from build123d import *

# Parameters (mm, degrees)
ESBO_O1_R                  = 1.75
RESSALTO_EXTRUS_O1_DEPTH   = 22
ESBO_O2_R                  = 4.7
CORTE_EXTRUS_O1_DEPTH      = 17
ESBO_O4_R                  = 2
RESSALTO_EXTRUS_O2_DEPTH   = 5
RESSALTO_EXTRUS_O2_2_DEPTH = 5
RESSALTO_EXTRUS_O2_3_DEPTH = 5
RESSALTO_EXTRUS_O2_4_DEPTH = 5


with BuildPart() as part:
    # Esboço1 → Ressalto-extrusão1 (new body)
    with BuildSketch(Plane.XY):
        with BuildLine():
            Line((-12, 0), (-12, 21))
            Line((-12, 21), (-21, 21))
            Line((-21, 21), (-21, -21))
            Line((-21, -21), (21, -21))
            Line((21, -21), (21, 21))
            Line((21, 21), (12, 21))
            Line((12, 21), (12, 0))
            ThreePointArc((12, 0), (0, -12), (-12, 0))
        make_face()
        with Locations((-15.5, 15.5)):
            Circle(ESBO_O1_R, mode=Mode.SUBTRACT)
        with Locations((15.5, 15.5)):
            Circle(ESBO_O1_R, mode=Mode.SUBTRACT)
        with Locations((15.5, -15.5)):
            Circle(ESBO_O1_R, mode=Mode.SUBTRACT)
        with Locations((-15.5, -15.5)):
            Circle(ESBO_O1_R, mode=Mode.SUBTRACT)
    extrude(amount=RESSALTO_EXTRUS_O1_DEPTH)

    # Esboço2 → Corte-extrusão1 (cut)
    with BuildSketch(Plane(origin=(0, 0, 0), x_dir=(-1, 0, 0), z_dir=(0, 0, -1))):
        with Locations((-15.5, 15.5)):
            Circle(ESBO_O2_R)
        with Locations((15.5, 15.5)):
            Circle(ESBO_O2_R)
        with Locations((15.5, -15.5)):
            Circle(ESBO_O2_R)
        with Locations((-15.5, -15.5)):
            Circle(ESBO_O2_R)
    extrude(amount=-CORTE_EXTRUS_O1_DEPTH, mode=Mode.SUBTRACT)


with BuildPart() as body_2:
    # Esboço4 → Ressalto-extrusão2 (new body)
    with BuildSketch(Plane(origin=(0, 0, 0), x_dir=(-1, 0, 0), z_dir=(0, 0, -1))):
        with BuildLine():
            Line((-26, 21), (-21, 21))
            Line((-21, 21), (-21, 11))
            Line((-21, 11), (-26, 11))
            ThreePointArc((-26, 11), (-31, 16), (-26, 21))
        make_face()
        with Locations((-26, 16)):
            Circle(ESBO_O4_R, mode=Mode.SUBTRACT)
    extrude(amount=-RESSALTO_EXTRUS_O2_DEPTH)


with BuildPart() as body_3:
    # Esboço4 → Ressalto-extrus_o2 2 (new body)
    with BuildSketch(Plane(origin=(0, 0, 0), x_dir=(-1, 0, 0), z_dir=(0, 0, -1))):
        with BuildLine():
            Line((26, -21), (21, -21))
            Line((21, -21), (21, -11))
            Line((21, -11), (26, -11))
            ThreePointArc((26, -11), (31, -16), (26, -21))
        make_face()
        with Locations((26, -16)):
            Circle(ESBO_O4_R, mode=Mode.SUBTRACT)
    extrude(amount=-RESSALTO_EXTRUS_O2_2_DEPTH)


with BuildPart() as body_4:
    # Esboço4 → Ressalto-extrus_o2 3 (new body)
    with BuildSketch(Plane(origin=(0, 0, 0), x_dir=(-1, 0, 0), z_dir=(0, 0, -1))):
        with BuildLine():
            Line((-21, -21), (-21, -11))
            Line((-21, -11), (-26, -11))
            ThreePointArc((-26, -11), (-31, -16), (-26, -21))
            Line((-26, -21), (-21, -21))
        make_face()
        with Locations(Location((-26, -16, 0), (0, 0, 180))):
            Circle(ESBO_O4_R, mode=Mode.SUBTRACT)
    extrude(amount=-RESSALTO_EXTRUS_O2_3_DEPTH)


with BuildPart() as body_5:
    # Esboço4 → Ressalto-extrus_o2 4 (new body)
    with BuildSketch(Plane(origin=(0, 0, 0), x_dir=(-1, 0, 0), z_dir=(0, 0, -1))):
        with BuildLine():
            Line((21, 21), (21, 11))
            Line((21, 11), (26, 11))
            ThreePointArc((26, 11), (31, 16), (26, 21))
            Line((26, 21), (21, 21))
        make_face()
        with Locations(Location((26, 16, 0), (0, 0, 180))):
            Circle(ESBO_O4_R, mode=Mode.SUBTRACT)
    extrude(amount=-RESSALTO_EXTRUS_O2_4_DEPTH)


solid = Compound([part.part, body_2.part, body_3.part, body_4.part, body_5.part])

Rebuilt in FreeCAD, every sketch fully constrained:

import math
import FreeCAD as App
import Part
import Sketcher
from FreeCAD import Vector
Q = App.Units.Quantity

doc = App.newDocument("Part")
body = doc.addObject("PartDesign::Body", "Body")

sketch1 = body.newObject("Sketcher::SketchObject", "Sketch")
sketch1.AttachmentSupport = (doc.getObject("XY_Plane"), [""])
sketch1.MapMode = "FlatFace"
sketch1.addGeometry(Part.LineSegment(Vector(-12, 0, 0), Vector(-12, 21, 0)), False)
sketch1.addGeometry(Part.LineSegment(Vector(-12, 21, 0), Vector(-21, 21, 0)), False)
sketch1.addGeometry(Part.LineSegment(Vector(-21, 21, 0), Vector(-21, -21, 0)), False)
sketch1.addGeometry(Part.LineSegment(Vector(-21, -21, 0), Vector(21, -21, 0)), False)
sketch1.addGeometry(Part.LineSegment(Vector(21, -21, 0), Vector(21, 21, 0)), False)
sketch1.addGeometry(Part.LineSegment(Vector(21, 21, 0), Vector(12, 21, 0)), False)
sketch1.addGeometry(Part.LineSegment(Vector(12, 21, 0), Vector(12, 0, 0)), False)
sketch1.addGeometry(Part.ArcOfCircle(Part.Circle(Vector(0, 0, 0), Vector(0, 0, 1), 12), math.radians(180), math.radians(360)), False)
sketch1.addGeometry(Part.Circle(Vector(-15.5, -15.5, 0), Vector(0, 0, 1), 1.8), False)
sketch1.addGeometry(Part.Circle(Vector(15.5, -15.5, 0), Vector(0, 0, 1), 1.8), False)
sketch1.addGeometry(Part.Circle(Vector(-15.5, 15.5, 0), Vector(0, 0, 1), 1.8), False)
sketch1.addGeometry(Part.Circle(Vector(15.5, 15.5, 0), Vector(0, 0, 1), 1.8), False)
sketch1.addConstraint(Sketcher.Constraint("Coincident", 0, 2, 1, 1))
sketch1.addConstraint(Sketcher.Constraint("Coincident", 1, 2, 2, 1))
sketch1.addConstraint(Sketcher.Constraint("Coincident", 2, 2, 3, 1))
sketch1.addConstraint(Sketcher.Constraint("Coincident", 3, 2, 4, 1))
sketch1.addConstraint(Sketcher.Constraint("Coincident", 4, 2, 5, 1))
sketch1.addConstraint(Sketcher.Constraint("Coincident", 5, 2, 6, 1))
sketch1.addConstraint(Sketcher.Constraint("Tangent", 6, 2, 7, 2))
sketch1.addConstraint(Sketcher.Constraint("Tangent", 7, 1, 0, 1))
sketch1.addConstraint(Sketcher.Constraint("Vertical", 0))
sketch1.addConstraint(Sketcher.Constraint("Horizontal", 1))
sketch1.addConstraint(Sketcher.Constraint("Vertical", 2))
sketch1.addConstraint(Sketcher.Constraint("Horizontal", 3))
sketch1.addConstraint(Sketcher.Constraint("Vertical", 4))
sketch1.addConstraint(Sketcher.Constraint("Horizontal", 5))
sketch1.addConstraint(Sketcher.Constraint("Vertical", 6))
sketch1.addConstraint(Sketcher.Constraint("Coincident", 7, 3, -1, 1))
sketch1.addConstraint(Sketcher.Constraint("Equal", 8, 9))
sketch1.addConstraint(Sketcher.Constraint("Equal", 9, 10))
sketch1.addConstraint(Sketcher.Constraint("Equal", 10, 11))
sketch1.addConstraint(Sketcher.Constraint("Symmetric", 9, 3, 10, 3, -1, 1))
sketch1.addConstraint(Sketcher.Constraint("Symmetric", 8, 3, 11, 3, -1, 1))
sketch1.addConstraint(Sketcher.Constraint("Symmetric", 1, 2, 3, 2, -1, 1))
sketch1.addConstraint(Sketcher.Constraint("Symmetric", 8, 3, 9, 3, -2))
sketch1.addConstraint(Sketcher.Constraint("Horizontal", 1, 2, 4, 2))
sketch1.addConstraint(Sketcher.Constraint("Equal", 3, 2))
sketch1.addConstraint(Sketcher.Constraint("Radius", 7, Q("12 mm")))
sketch1.addConstraint(Sketcher.Constraint("Diameter", 8, Q("3.5 mm")))
sketch1.addConstraint(Sketcher.Constraint("DistanceX", 1, 2, 1, 1, Q("9 mm")))
sketch1.addConstraint(Sketcher.Constraint("DistanceX", 8, 3, 9, 3, Q("31 mm")))
sketch1.addConstraint(Sketcher.Constraint("DistanceY", 8, 3, 10, 3, Q("31 mm")))
pad1 = body.newObject("PartDesign::Pad", "Pad")
pad1.Profile = sketch1
pad1.Length = 22

sketch2 = body.newObject("Sketcher::SketchObject", "Sketch001")
sketch2.AttachmentSupport = (doc.getObject("XY_Plane"), [""])
sketch2.MapMode = "FlatFace"
sketch2.addGeometry(Part.Circle(Vector(15.5, 15.5, 0), Vector(0, 0, 1), 4.7), False)
sketch2.addGeometry(Part.Circle(Vector(-15.5, 15.5, 0), Vector(0, 0, 1), 4.7), False)
sketch2.addGeometry(Part.Circle(Vector(-15.5, -15.5, 0), Vector(0, 0, 1), 4.7), False)
sketch2.addGeometry(Part.Circle(Vector(15.5, -15.5, 0), Vector(0, 0, 1), 4.7), False)
sketch2.addConstraint(Sketcher.Constraint("Equal", 0, 1))
sketch2.addConstraint(Sketcher.Constraint("Equal", 1, 2))
sketch2.addConstraint(Sketcher.Constraint("Equal", 2, 3))
sketch2.addConstraint(Sketcher.Constraint("Symmetric", 0, 3, 2, 3, -1, 1))
sketch2.addConstraint(Sketcher.Constraint("Symmetric", 1, 3, 3, 3, -1, 1))
sketch2.addConstraint(Sketcher.Constraint("Symmetric", 0, 3, 1, 3, -2))
sketch2.addConstraint(Sketcher.Constraint("Diameter", 0, Q("9.4 mm")))
sketch2.addConstraint(Sketcher.Constraint("DistanceX", 1, 3, 0, 3, Q("31 mm")))
sketch2.addConstraint(Sketcher.Constraint("DistanceY", 2, 3, 1, 3, Q("31 mm")))
pocket1 = body.newObject("PartDesign::Pocket", "Pocket")
pocket1.Profile = sketch2
pocket1.Length = 17
pocket1.Reversed = True
body2 = doc.addObject("PartDesign::Body", "Body001")

sketch3 = body2.newObject("Sketcher::SketchObject", "Sketch002")
sketch3.AttachmentSupport = (doc.getObject("XY_Plane001"), [""])
sketch3.MapMode = "FlatFace"
sketch3.addGeometry(Part.LineSegment(Vector(21, 21, 0), Vector(26, 21, 0)), False)
sketch3.addGeometry(Part.ArcOfCircle(Part.Circle(Vector(26, 16, 0), Vector(0, 0, 1), 5), math.radians(-90), math.radians(90)), False)
sketch3.addGeometry(Part.LineSegment(Vector(26, 11, 0), Vector(21, 11, 0)), False)
sketch3.addGeometry(Part.LineSegment(Vector(21, 11, 0), Vector(21, 21, 0)), False)
sketch3.addGeometry(Part.Circle(Vector(26, 16, 0), Vector(0, 0, 1), 2), False)
sketch3.addConstraint(Sketcher.Constraint("Tangent", 0, 2, 1, 2))
sketch3.addConstraint(Sketcher.Constraint("Tangent", 1, 1, 2, 1))
sketch3.addConstraint(Sketcher.Constraint("Coincident", 2, 2, 3, 1))
sketch3.addConstraint(Sketcher.Constraint("Coincident", 3, 2, 0, 1))
sketch3.addConstraint(Sketcher.Constraint("Horizontal", 0))
sketch3.addConstraint(Sketcher.Constraint("Horizontal", 2))
sketch3.addConstraint(Sketcher.Constraint("Vertical", 3))
sketch3.addConstraint(Sketcher.Constraint("Coincident", 4, 3, 1, 3))
sketch3.addConstraint(Sketcher.Constraint("Diameter", 4, Q("4 mm")))
sketch3.addConstraint(Sketcher.Constraint("Radius", 1, Q("5 mm")))
sketch3.addConstraint(Sketcher.Constraint("DistanceX", 0, 1, 0, 2, Q("5 mm")))
sketch3.addConstraint(Sketcher.Constraint("DistanceX", -1, 1, 1, 3, Q("26 mm")))
sketch3.addConstraint(Sketcher.Constraint("DistanceY", -1, 1, 1, 3, Q("16 mm")))
pad2 = body2.newObject("PartDesign::Pad", "Pad001")
pad2.Profile = sketch3
pad2.Length = 5
body3 = doc.addObject("PartDesign::Body", "Body002")

sketch4 = body3.newObject("Sketcher::SketchObject", "Sketch003")
sketch4.AttachmentSupport = (doc.getObject("XY_Plane002"), [""])
sketch4.MapMode = "FlatFace"
sketch4.addGeometry(Part.LineSegment(Vector(-21, -21, 0), Vector(-26, -21, 0)), False)
sketch4.addGeometry(Part.ArcOfCircle(Part.Circle(Vector(-26, -16, 0), Vector(0, 0, 1), 5), math.radians(90), math.radians(270)), False)
sketch4.addGeometry(Part.LineSegment(Vector(-26, -11, 0), Vector(-21, -11, 0)), False)
sketch4.addGeometry(Part.LineSegment(Vector(-21, -11, 0), Vector(-21, -21, 0)), False)
sketch4.addGeometry(Part.Circle(Vector(-26, -16, 0), Vector(0, 0, 1), 2), False)
sketch4.addConstraint(Sketcher.Constraint("Tangent", 0, 2, 1, 2))
sketch4.addConstraint(Sketcher.Constraint("Tangent", 1, 1, 2, 1))
sketch4.addConstraint(Sketcher.Constraint("Coincident", 2, 2, 3, 1))
sketch4.addConstraint(Sketcher.Constraint("Coincident", 3, 2, 0, 1))
sketch4.addConstraint(Sketcher.Constraint("Horizontal", 0))
sketch4.addConstraint(Sketcher.Constraint("Horizontal", 2))
sketch4.addConstraint(Sketcher.Constraint("Vertical", 3))
sketch4.addConstraint(Sketcher.Constraint("Coincident", 4, 3, 1, 3))
sketch4.addConstraint(Sketcher.Constraint("Diameter", 4, Q("4 mm")))
sketch4.addConstraint(Sketcher.Constraint("Radius", 1, Q("5 mm")))
sketch4.addConstraint(Sketcher.Constraint("DistanceX", 0, 2, 0, 1, Q("5 mm")))
sketch4.addConstraint(Sketcher.Constraint("DistanceX", 1, 3, -1, 1, Q("26 mm")))
sketch4.addConstraint(Sketcher.Constraint("DistanceY", 1, 3, -1, 1, Q("16 mm")))
pad3 = body3.newObject("PartDesign::Pad", "Pad002")
pad3.Profile = sketch4
pad3.Length = 5
body4 = doc.addObject("PartDesign::Body", "Body003")

sketch5 = body4.newObject("Sketcher::SketchObject", "Sketch004")
sketch5.AttachmentSupport = (doc.getObject("XY_Plane003"), [""])
sketch5.MapMode = "FlatFace"
sketch5.addGeometry(Part.LineSegment(Vector(21, -21, 0), Vector(21, -11, 0)), False)
sketch5.addGeometry(Part.LineSegment(Vector(21, -11, 0), Vector(26, -11, 0)), False)
sketch5.addGeometry(Part.ArcOfCircle(Part.Circle(Vector(26, -16, 0), Vector(0, 0, 1), 5), math.radians(-90), math.radians(90)), False)
sketch5.addGeometry(Part.LineSegment(Vector(26, -21, 0), Vector(21, -21, 0)), False)
sketch5.addGeometry(Part.Circle(Vector(26, -16, 0), Vector(0, 0, 1), 2), False)
sketch5.addConstraint(Sketcher.Constraint("Coincident", 0, 2, 1, 1))
sketch5.addConstraint(Sketcher.Constraint("Tangent", 1, 2, 2, 2))
sketch5.addConstraint(Sketcher.Constraint("Tangent", 2, 1, 3, 1))
sketch5.addConstraint(Sketcher.Constraint("Coincident", 3, 2, 0, 1))
sketch5.addConstraint(Sketcher.Constraint("Vertical", 0))
sketch5.addConstraint(Sketcher.Constraint("Horizontal", 1))
sketch5.addConstraint(Sketcher.Constraint("Horizontal", 3))
sketch5.addConstraint(Sketcher.Constraint("Coincident", 4, 3, 2, 3))
sketch5.addConstraint(Sketcher.Constraint("Diameter", 4, Q("4 mm")))
sketch5.addConstraint(Sketcher.Constraint("Radius", 2, Q("5 mm")))
sketch5.addConstraint(Sketcher.Constraint("DistanceX", 1, 1, 1, 2, Q("5 mm")))
sketch5.addConstraint(Sketcher.Constraint("DistanceX", -1, 1, 2, 3, Q("26 mm")))
sketch5.addConstraint(Sketcher.Constraint("DistanceY", 2, 3, -1, 1, Q("16 mm")))
pad4 = body4.newObject("PartDesign::Pad", "Pad003")
pad4.Profile = sketch5
pad4.Length = 5
body5 = doc.addObject("PartDesign::Body", "Body004")

sketch6 = body5.newObject("Sketcher::SketchObject", "Sketch005")
sketch6.AttachmentSupport = (doc.getObject("XY_Plane004"), [""])
sketch6.MapMode = "FlatFace"
sketch6.addGeometry(Part.LineSegment(Vector(-21, 21, 0), Vector(-21, 11, 0)), False)
sketch6.addGeometry(Part.LineSegment(Vector(-21, 11, 0), Vector(-26, 11, 0)), False)
sketch6.addGeometry(Part.ArcOfCircle(Part.Circle(Vector(-26, 16, 0), Vector(0, 0, 1), 5), math.radians(90), math.radians(270)), False)
sketch6.addGeometry(Part.LineSegment(Vector(-26, 21, 0), Vector(-21, 21, 0)), False)
sketch6.addGeometry(Part.Circle(Vector(-26, 16, 0), Vector(0, 0, 1), 2), False)
sketch6.addConstraint(Sketcher.Constraint("Coincident", 0, 2, 1, 1))
sketch6.addConstraint(Sketcher.Constraint("Tangent", 1, 2, 2, 2))
sketch6.addConstraint(Sketcher.Constraint("Tangent", 2, 1, 3, 1))
sketch6.addConstraint(Sketcher.Constraint("Coincident", 3, 2, 0, 1))
sketch6.addConstraint(Sketcher.Constraint("Vertical", 0))
sketch6.addConstraint(Sketcher.Constraint("Horizontal", 1))
sketch6.addConstraint(Sketcher.Constraint("Horizontal", 3))
sketch6.addConstraint(Sketcher.Constraint("Coincident", 4, 3, 2, 3))
sketch6.addConstraint(Sketcher.Constraint("Diameter", 4, Q("4 mm")))
sketch6.addConstraint(Sketcher.Constraint("Radius", 2, Q("5 mm")))
sketch6.addConstraint(Sketcher.Constraint("DistanceX", 1, 2, 1, 1, Q("5 mm")))
sketch6.addConstraint(Sketcher.Constraint("DistanceX", 2, 3, -1, 1, Q("26 mm")))
sketch6.addConstraint(Sketcher.Constraint("DistanceY", -1, 1, 2, 3, Q("16 mm")))
pad5 = body5.newObject("PartDesign::Pad", "Pad004")
pad5.Profile = sketch6
pad5.Length = 5

doc.recompute()
